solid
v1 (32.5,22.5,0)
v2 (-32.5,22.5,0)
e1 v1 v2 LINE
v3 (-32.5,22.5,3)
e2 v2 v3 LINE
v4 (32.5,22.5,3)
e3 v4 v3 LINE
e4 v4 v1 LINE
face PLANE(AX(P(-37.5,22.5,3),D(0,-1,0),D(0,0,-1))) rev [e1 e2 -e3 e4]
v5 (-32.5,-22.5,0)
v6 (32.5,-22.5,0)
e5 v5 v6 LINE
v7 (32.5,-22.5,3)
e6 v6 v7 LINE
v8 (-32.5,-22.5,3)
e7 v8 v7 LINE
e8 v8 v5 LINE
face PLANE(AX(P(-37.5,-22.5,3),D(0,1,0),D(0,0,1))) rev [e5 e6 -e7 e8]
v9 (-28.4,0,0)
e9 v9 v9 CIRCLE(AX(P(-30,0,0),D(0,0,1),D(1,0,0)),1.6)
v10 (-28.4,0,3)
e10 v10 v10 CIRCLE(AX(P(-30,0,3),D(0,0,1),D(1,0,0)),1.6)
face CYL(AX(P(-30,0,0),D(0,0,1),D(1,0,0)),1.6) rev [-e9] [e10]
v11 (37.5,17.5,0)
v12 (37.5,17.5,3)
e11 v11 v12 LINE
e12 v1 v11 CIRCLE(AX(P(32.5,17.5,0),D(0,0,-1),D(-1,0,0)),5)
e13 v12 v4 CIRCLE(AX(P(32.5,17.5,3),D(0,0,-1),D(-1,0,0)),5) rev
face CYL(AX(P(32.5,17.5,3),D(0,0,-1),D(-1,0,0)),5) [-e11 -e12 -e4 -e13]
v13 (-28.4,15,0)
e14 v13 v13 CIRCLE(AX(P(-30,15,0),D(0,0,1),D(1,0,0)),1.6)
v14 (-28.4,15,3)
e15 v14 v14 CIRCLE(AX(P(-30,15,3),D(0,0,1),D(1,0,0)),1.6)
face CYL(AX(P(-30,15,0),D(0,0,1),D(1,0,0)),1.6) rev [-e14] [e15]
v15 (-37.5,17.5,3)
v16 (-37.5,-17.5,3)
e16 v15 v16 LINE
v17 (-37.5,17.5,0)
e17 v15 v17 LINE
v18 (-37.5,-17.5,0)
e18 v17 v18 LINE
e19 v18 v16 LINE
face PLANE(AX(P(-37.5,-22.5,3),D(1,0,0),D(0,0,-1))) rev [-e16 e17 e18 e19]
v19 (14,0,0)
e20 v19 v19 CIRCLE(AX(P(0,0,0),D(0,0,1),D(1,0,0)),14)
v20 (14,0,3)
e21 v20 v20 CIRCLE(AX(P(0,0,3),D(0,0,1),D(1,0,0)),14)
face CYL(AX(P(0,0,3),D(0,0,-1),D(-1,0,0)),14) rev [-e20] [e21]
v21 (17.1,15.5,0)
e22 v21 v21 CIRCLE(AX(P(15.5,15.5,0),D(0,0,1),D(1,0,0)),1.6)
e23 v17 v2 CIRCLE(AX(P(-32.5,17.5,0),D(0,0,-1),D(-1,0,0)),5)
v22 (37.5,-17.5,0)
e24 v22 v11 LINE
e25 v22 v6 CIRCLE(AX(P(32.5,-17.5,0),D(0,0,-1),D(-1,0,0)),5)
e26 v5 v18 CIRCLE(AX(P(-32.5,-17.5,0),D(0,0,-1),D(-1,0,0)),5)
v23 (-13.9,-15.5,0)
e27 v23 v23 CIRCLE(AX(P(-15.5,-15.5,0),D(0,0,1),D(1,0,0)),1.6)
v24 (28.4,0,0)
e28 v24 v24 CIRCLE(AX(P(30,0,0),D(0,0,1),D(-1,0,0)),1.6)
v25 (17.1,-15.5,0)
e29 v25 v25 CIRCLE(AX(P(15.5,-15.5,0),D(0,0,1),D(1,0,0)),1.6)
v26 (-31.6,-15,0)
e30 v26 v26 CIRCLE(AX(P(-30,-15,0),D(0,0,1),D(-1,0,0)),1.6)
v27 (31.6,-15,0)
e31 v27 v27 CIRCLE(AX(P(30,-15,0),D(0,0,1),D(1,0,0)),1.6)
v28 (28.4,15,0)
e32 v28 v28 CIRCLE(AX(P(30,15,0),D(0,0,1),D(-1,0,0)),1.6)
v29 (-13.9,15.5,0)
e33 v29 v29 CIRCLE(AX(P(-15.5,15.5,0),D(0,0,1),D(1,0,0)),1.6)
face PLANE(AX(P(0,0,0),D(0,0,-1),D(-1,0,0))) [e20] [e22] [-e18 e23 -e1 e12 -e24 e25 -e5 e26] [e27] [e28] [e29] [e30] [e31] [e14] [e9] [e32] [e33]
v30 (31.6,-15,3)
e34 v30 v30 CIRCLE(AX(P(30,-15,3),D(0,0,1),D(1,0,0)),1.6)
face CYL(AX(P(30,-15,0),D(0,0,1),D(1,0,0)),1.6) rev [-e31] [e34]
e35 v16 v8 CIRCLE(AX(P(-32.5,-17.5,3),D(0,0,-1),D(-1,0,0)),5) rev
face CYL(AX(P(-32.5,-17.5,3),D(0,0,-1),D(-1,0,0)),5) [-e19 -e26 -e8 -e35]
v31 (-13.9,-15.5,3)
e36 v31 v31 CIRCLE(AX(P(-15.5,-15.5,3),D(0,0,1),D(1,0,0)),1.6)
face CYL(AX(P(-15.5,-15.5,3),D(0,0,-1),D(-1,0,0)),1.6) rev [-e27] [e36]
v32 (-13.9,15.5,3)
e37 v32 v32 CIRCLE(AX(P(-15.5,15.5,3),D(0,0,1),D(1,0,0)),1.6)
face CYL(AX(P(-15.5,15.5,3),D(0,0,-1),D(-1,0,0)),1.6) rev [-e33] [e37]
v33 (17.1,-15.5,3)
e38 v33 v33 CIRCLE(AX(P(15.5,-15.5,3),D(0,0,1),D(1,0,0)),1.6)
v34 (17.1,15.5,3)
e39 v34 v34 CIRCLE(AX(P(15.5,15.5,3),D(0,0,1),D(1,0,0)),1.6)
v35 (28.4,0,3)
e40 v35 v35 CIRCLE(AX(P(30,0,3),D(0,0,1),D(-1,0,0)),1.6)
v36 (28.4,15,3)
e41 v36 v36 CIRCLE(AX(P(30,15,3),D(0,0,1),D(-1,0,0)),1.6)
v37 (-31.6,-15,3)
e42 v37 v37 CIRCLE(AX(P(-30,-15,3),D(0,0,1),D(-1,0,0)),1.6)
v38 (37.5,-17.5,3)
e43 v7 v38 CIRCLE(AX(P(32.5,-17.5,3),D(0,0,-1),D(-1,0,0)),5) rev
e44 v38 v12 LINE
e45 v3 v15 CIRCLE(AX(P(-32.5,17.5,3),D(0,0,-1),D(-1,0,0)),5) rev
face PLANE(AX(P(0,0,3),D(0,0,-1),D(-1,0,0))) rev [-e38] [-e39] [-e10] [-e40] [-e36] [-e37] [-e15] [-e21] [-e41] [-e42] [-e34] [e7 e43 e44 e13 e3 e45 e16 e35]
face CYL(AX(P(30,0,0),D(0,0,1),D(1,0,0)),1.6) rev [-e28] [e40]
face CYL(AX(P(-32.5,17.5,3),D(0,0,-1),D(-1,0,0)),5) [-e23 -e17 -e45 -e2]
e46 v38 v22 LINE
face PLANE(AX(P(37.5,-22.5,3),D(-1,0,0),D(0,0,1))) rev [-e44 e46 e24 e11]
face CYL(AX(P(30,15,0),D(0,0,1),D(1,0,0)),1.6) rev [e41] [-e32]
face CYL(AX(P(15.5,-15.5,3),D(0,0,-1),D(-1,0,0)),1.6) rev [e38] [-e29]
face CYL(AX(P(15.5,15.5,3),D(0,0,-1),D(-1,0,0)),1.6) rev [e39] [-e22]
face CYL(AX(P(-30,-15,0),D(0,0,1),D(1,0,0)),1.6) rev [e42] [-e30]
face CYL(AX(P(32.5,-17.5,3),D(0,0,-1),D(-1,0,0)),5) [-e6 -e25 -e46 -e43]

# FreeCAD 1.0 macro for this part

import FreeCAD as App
import Part
import Sketcher


def edges_at(feature, points):
    """Names of the edges that pass closest to the given points."""
    edges = feature.Shape.Edges
    near = lambda p: min(range(len(edges)), key=lambda i: edges[i].distToShape(Part.Vertex(*p))[0])
    return sorted({f"Edge{near(p) + 1}" for p in points})

doc = App.newDocument("Part")
body = doc.addObject("PartDesign::Body", "Body")

sketch1 = body.newObject("Sketcher::SketchObject", "Sketch")
sketch1.AttachmentSupport = (doc.getObject("XY_Plane"), [""])
sketch1.MapMode = "FlatFace"
sketch1.addGeometry(Part.LineSegment(App.Vector(-37.5, 22.5, 0), App.Vector(-37.5, -22.5, 0)), False)
sketch1.addGeometry(Part.LineSegment(App.Vector(-37.5, -22.5, 0), App.Vector(37.5, -22.5, 0)), False)
sketch1.addGeometry(Part.LineSegment(App.Vector(37.5, -22.5, 0), App.Vector(37.5, 22.5, 0)), False)
sketch1.addGeometry(Part.LineSegment(App.Vector(37.5, 22.5, 0), App.Vector(-37.5, 22.5, 0)), False)
sketch1.addGeometry(Part.Circle(App.Vector(-15.5, -15.5, 0), App.Vector(0, 0, 1), 1.6), False)
sketch1.addGeometry(Part.Circle(App.Vector(15.5, -15.5, 0), App.Vector(0, 0, 1), 1.6), False)
sketch1.addGeometry(Part.Circle(App.Vector(-15.5, 15.5, 0), App.Vector(0, 0, 1), 1.6), False)
sketch1.addGeometry(Part.Circle(App.Vector(0, 0, 0), App.Vector(0, 0, 1), 14), False)
sketch1.addGeometry(Part.Circle(App.Vector(15.5, 15.5, 0), App.Vector(0, 0, 1), 1.6), False)
sketch1.addConstraint(Sketcher.Constraint("Coincident", 0, 2, 1, 1))
sketch1.addConstraint(Sketcher.Constraint("Coincident", 1, 2, 2, 1))
sketch1.addConstraint(Sketcher.Constraint("Coincident", 2, 2, 3, 1))
sketch1.addConstraint(Sketcher.Constraint("Coincident", 3, 2, 0, 1))
sketch1.addConstraint(Sketcher.Constraint("Vertical", 0))
sketch1.addConstraint(Sketcher.Constraint("Horizontal", 1))
sketch1.addConstraint(Sketcher.Constraint("Vertical", 2))
sketch1.addConstraint(Sketcher.Constraint("Horizontal", 3))
sketch1.addConstraint(Sketcher.Constraint("Coincident", 7, 3, -1, 1))
sketch1.addConstraint(Sketcher.Constraint("Equal", 4, 5))
sketch1.addConstraint(Sketcher.Constraint("Equal", 5, 6))
sketch1.addConstraint(Sketcher.Constraint("Equal", 6, 8))
sketch1.addConstraint(Sketcher.Constraint("Symmetric", 5, 3, 6, 3, -1, 1))
sketch1.addConstraint(Sketcher.Constraint("Symmetric", 4, 3, 8, 3, -1, 1))
sketch1.addConstraint(Sketcher.Constraint("Symmetric", 0, 2, 2, 2, -1, 1))
sketch1.addConstraint(Sketcher.Constraint("Symmetric", 4, 3, 5, 3, -2))
sketch1.addConstraint(Sketcher.Constraint("Diameter", 7, 28.0))
sketch1.addConstraint(Sketcher.Constraint("Diameter", 4, 3.2))
sketch1.addConstraint(Sketcher.Constraint("DistanceX", 1, 1, 1, 2, 75.0))
sketch1.addConstraint(Sketcher.Constraint("DistanceY", 0, 2, 0, 1, 45.0))
sketch1.addConstraint(Sketcher.Constraint("DistanceX", 4, 3, 5, 3, 31.0))
sketch1.addConstraint(Sketcher.Constraint("DistanceY", 4, 3, 6, 3, 31.0))
pad1 = body.newObject("PartDesign::Pad", "Pad")
pad1.Profile = sketch1
pad1.Length = 3
doc.recompute()

fillet = body.newObject("PartDesign::Fillet", "Fillet")
fillet.Base = (pad1, edges_at(pad1, [
    (37.5, -22.5, 1.5),
    (-37.5, -22.5, 1.5),
    (-37.5, 22.5, 1.5),
    (37.5, 22.5, 1.5),
]))
fillet.Radius = 5

sketch2 = body.newObject("Sketcher::SketchObject", "Sketch001")
sketch2.AttachmentSupport = (doc.getObject("XY_Plane"), [""])
sketch2.MapMode = "FlatFace"
sketch2.AttachmentOffset = App.Placement(App.Vector(0, 0, 3), App.Rotation())
sketch2.addGeometry(Part.Circle(App.Vector(-30, 0, 0), App.Vector(0, 0, 1), 1.6), False)
sketch2.addGeometry(Part.Circle(App.Vector(-30, 15, 0), App.Vector(0, 0, 1), 1.6), False)
sketch2.addGeometry(Part.Circle(App.Vector(-30, -15, 0), App.Vector(0, 0, 1), 1.6), False)
sketch2.addGeometry(Part.Circle(App.Vector(30, -15, 0), App.Vector(0, 0, 1), 1.6), False)
sketch2.addGeometry(Part.Circle(App.Vector(30, 15, 0), App.Vector(0, 0, 1), 1.6), False)
sketch2.addGeometry(Part.Circle(App.Vector(30, 0, 0), App.Vector(0, 0, 1), 1.6), False)
sketch2.addConstraint(Sketcher.Constraint("Equal", 0, 1))
sketch2.addConstraint(Sketcher.Constraint("Equal", 1, 2))
sketch2.addConstraint(Sketcher.Constraint("Equal", 2, 3))
sketch2.addConstraint(Sketcher.Constraint("Equal", 3, 4))
sketch2.addConstraint(Sketcher.Constraint("Equal", 4, 5))
sketch2.addConstraint(Sketcher.Constraint("Symmetric", 1, 3, 3, 3, -1, 1))
sketch2.addConstraint(Sketcher.Constraint("Symmetric", 2, 3, 4, 3, -1, 1))
sketch2.addConstraint(Sketcher.Constraint("Symmetric", 0, 3, 5, 3, -1, 1))
sketch2.addConstraint(Sketcher.Constraint("Symmetric", 2, 3, 3, 3, -2))
sketch2.addConstraint(Sketcher.Constraint("PointOnObject", 0, 3, -1))
sketch2.addConstraint(Sketcher.Constraint("Vertical", 0, 3, 1, 3))
sketch2.addConstraint(Sketcher.Constraint("Diameter", 0, 3.2))
sketch2.addConstraint(Sketcher.Constraint("DistanceX", 0, 3, -1, 1, 30.0))
sketch2.addConstraint(Sketcher.Constraint("DistanceY", -1, 1, 1, 3, 15.0))
pocket1 = body.newObject("PartDesign::Pocket", "Pocket")
pocket1.Profile = sketch2
pocket1.Type = "ThroughAll"

doc.recompute()
